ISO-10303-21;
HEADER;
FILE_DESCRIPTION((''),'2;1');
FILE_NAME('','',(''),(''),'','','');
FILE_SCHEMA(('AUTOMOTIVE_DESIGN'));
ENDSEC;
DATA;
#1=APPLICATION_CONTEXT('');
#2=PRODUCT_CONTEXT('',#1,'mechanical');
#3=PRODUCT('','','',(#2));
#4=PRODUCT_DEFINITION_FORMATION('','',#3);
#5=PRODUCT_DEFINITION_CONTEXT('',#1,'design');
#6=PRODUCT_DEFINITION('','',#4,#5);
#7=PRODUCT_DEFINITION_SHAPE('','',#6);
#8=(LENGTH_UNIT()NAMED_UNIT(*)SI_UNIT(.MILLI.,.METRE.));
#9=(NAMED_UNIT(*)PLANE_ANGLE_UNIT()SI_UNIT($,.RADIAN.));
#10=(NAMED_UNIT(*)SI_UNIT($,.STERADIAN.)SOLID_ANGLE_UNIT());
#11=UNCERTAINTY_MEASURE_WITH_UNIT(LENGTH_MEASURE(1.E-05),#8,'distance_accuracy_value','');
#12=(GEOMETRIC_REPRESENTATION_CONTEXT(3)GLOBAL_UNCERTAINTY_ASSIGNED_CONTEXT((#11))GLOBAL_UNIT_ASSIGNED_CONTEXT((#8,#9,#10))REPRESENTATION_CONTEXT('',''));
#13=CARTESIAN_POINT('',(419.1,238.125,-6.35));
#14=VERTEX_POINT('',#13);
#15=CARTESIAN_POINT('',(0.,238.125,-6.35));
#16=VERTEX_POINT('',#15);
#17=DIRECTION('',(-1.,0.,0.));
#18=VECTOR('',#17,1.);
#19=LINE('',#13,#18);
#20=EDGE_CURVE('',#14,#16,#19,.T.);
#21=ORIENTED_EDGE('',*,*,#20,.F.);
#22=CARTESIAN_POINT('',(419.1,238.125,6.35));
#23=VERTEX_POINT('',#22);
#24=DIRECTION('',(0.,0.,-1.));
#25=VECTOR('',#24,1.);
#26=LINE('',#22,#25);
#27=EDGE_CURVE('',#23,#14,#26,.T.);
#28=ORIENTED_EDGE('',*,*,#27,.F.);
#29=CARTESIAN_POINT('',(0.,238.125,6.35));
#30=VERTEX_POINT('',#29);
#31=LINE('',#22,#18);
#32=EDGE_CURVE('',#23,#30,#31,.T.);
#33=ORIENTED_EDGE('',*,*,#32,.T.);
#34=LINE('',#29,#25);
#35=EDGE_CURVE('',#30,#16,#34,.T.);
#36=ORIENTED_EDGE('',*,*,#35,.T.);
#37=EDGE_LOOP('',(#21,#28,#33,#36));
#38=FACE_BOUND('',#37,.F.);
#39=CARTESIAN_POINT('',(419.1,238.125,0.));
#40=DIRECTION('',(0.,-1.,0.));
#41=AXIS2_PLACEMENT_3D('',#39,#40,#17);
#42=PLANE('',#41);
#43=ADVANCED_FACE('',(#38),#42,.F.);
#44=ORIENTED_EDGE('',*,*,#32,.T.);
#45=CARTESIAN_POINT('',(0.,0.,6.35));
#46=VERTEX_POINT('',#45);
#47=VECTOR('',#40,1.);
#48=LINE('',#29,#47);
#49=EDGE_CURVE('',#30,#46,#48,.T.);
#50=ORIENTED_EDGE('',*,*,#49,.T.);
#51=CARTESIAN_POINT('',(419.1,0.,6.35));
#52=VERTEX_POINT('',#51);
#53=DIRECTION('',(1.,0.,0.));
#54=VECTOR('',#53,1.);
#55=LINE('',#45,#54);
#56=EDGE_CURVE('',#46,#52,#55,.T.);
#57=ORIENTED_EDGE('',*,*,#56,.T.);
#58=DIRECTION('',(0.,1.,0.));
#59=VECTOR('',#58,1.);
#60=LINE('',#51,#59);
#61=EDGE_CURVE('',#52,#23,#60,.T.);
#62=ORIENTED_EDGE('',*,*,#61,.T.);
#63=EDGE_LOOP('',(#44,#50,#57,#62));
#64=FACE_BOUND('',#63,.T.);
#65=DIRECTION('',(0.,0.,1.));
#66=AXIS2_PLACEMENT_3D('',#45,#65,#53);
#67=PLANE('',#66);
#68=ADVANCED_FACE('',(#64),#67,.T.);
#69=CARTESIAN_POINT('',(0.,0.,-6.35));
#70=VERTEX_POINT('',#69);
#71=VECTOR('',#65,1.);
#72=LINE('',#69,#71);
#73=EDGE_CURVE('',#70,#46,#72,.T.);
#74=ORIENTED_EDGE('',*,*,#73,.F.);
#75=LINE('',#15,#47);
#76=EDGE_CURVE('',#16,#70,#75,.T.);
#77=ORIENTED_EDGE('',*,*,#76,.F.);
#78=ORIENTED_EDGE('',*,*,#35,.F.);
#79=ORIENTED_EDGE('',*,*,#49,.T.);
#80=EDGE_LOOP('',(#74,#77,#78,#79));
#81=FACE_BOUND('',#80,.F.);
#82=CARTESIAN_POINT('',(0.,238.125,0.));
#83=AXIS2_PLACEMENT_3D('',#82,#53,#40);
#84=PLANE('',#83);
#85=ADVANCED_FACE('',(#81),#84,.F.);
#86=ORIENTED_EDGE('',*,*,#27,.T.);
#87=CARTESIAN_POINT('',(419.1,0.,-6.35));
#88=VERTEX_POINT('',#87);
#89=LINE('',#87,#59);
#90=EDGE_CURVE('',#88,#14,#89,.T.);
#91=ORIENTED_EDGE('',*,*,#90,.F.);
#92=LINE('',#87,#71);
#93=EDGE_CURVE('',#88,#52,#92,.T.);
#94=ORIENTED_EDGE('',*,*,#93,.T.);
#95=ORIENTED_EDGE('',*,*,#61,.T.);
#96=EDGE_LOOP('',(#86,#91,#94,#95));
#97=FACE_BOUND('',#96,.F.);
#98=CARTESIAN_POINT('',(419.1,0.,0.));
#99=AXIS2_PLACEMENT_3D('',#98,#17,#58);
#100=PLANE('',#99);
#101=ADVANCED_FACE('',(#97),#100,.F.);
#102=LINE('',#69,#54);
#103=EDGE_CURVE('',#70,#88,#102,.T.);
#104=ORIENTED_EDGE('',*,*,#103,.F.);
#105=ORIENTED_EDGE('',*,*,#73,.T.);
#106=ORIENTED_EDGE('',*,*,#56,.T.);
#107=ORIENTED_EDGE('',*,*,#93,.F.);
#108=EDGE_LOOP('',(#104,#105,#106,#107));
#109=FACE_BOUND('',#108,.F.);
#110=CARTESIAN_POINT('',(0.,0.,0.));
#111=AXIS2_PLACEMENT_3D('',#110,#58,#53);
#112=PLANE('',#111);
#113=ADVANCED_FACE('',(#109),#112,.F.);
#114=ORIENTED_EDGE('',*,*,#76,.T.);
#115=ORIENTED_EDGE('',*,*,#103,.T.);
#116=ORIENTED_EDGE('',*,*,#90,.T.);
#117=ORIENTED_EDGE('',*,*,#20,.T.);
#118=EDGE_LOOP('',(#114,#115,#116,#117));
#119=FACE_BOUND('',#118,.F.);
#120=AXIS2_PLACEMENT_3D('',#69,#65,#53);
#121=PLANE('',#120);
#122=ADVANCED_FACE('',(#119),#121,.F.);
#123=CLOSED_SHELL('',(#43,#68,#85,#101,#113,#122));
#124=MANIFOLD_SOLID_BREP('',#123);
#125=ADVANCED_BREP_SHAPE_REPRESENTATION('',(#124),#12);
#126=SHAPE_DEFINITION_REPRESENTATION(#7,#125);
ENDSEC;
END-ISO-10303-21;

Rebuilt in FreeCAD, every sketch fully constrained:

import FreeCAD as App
import Part
import Sketcher
from FreeCAD import Vector
Q = App.Units.Quantity


def add_polygon(sketch, points):
    """Adds a closed chain of lines whose ends are joined by coincident constraints."""
    first, n = sketch.GeometryCount, len(points)
    for a, b in zip(points, points[1:] + points[:1]):
        sketch.addGeometry(Part.LineSegment(App.Vector(*a, 0), App.Vector(*b, 0)), False)
    for i in range(n):
        sketch.addConstraint(Sketcher.Constraint("Coincident", first + i, 2, first + (i + 1) % n, 1))

doc = App.newDocument("Part")
params = doc.addObject("Spreadsheet::Sheet", "Params")
for row, (alias, value) in enumerate([
    ("sketch1_width", "16.5 in"),
    ("sketch1_height", "9.375 in"),
    ("pad1_length", "0.5 in"),
], start=1):
    params.set(f"A{row}", alias)
    params.set(f"B{row}", "=" + value)
    params.setAlias(f"B{row}", alias)

body = doc.addObject("PartDesign::Body", "Body")

sketch1 = body.newObject("Sketcher::SketchObject", "Sketch")
sketch1.AttachmentSupport = (doc.getObject("XY_Plane"), [""])
sketch1.MapMode = "FlatFace"
add_polygon(sketch1, [(0, 238), (0, 0), (419, 0), (419, 238)])
sketch1.addConstraint([
    Sketcher.Constraint("Vertical", 0),
    Sketcher.Constraint("Horizontal", 1),
    Sketcher.Constraint("Vertical", 2),
    Sketcher.Constraint("Horizontal", 3),
    Sketcher.Constraint("Coincident", 0, 2, -1, 1),
    Sketcher.Constraint("DistanceX", 1, 1, 1, 2, Q("16.5 in")),
    Sketcher.Constraint("DistanceY", 0, 2, 0, 1, Q("9.375 in")),
])
sketch1.setExpression("Constraints[9]", "Params.sketch1_width")
sketch1.setExpression("Constraints[10]", "Params.sketch1_height")
pad1 = body.newObject("PartDesign::Pad", "Pad")
pad1.Profile = sketch1
pad1.setExpression("Length", "Params.pad1_length")
pad1.Midplane = True

doc.recompute()
